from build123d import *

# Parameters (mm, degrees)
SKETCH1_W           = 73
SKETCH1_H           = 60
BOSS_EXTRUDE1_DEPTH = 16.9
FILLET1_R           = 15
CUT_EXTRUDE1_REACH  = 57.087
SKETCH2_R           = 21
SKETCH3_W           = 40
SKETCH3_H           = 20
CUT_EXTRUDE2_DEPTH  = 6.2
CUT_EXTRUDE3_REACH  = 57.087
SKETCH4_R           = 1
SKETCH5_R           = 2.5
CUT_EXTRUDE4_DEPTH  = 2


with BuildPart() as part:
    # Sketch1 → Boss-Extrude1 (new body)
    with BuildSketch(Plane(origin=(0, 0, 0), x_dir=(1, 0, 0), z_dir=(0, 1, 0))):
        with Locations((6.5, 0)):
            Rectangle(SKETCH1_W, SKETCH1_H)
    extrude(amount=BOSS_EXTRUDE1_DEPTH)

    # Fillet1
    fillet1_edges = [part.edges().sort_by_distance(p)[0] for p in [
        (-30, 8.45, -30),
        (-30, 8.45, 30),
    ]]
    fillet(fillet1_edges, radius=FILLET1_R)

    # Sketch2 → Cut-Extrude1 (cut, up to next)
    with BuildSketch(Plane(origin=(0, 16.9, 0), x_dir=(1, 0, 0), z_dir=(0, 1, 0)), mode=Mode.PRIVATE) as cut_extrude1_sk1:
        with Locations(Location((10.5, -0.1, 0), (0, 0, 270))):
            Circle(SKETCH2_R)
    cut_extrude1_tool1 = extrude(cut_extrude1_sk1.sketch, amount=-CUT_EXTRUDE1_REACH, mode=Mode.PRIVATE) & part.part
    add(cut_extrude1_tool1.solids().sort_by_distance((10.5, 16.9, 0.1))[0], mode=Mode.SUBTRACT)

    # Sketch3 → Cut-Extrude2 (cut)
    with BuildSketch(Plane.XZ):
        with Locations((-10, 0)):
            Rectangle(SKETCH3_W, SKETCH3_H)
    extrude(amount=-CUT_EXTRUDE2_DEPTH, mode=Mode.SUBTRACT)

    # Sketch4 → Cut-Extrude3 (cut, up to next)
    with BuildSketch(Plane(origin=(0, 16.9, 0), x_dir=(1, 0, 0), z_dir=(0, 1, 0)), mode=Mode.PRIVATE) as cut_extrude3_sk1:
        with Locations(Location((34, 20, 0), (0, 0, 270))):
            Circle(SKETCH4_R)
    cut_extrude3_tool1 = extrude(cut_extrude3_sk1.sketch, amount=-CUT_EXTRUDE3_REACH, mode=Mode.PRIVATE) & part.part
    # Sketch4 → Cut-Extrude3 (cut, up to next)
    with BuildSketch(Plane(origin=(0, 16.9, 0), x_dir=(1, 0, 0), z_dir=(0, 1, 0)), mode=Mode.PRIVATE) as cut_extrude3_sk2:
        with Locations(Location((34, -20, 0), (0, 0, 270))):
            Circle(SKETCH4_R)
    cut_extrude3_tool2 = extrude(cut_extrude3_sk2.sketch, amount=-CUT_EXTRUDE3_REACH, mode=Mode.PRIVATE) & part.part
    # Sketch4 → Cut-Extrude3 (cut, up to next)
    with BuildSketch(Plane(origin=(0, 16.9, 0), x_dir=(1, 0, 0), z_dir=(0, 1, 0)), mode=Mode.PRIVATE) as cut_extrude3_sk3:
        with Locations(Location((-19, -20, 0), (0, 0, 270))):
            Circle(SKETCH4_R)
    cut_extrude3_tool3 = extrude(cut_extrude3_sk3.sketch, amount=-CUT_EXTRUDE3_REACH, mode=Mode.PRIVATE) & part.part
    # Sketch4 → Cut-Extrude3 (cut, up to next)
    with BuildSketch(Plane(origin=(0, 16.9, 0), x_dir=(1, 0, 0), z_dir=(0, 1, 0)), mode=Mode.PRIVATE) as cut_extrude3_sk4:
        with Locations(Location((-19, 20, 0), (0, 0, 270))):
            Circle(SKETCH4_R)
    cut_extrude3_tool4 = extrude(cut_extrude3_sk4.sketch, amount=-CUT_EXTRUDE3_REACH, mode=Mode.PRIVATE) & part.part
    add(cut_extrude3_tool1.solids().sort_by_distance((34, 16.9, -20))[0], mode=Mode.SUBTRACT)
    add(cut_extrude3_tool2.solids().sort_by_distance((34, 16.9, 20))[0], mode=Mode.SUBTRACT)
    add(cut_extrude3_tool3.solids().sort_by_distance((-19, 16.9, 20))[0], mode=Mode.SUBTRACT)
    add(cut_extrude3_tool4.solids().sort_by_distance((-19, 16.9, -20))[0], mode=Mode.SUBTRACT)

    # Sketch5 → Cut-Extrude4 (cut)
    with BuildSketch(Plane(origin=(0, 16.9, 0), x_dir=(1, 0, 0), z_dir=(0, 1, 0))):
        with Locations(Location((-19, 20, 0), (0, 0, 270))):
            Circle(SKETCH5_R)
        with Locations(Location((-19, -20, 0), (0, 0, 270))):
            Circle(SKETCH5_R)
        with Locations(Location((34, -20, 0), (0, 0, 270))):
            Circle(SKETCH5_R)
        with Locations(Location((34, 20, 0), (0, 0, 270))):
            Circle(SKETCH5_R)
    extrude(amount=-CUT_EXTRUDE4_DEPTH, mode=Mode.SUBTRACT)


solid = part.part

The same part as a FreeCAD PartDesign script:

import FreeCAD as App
import Part
import Sketcher
from FreeCAD import Vector
Q = App.Units.Quantity


def edges_at(feature, points):
    """Names of the edges that pass closest to the given points."""
    edges = feature.Shape.Edges
    near = lambda p: min(range(len(edges)), key=lambda i: edges[i].distToShape(Part.Vertex(*p))[0])
    return sorted({f"Edge{near(p) + 1}" for p in points})


def add_polygon(sketch, points):
    """Adds a closed chain of lines whose ends are joined by coincident constraints."""
    first, n = sketch.GeometryCount, len(points)
    for a, b in zip(points, points[1:] + points[:1]):
        sketch.addGeometry(Part.LineSegment(App.Vector(*a, 0), App.Vector(*b, 0)), False)
    for i in range(n):
        sketch.addConstraint(Sketcher.Constraint("Coincident", first + i, 2, first + (i + 1) % n, 1))

doc = App.newDocument("Part")
params = doc.addObject("Spreadsheet::Sheet", "Params")
for row, (alias, value) in enumerate([
    ("sketch1_width", "73 mm"),
    ("sketch1_height", "60 mm"),
    ("pad1_length", "16.9 mm"),
    ("fillet_radius", "15 mm"),
    ("sketch2_diameter", "42 mm"),
    ("sketch3_width", "40 mm"),
    ("sketch3_height", "20 mm"),
    ("pocket2_length", "6.2 mm"),
    ("sketch4_diameter", "2 mm"),
    ("sketch5_diameter", "2 mm"),
    ("sketch6_diameter", "2 mm"),
    ("sketch7_diameter", "2 mm"),
    ("sketch8_diameter", "5 mm"),
    ("pocket7_length", "2 mm"),
], start=1):
    params.set(f"A{row}", alias)
    params.set(f"B{row}", "=" + value)
    params.setAlias(f"B{row}", alias)

body = doc.addObject("PartDesign::Body", "Body")

sketch1 = body.newObject("Sketcher::SketchObject", "Sketch")
sketch1.AttachmentSupport = (doc.getObject("XZ_Plane"), [""])
sketch1.MapMode = "FlatFace"
add_polygon(sketch1, [(-30, -30), (-30, 30), (43, 30), (43, -30)])
sketch1.addConstraint([
    Sketcher.Constraint("Vertical", 0),
    Sketcher.Constraint("Horizontal", 1),
    Sketcher.Constraint("Vertical", 2),
    Sketcher.Constraint("Horizontal", 3),
    Sketcher.Constraint("DistanceX", 1, 1, 1, 2, Q("73 mm")),
    Sketcher.Constraint("DistanceY", 0, 1, 0, 2, Q("60 mm")),
    Sketcher.Constraint("DistanceX", 0, 2, -1, 1, Q("30 mm")),
    Sketcher.Constraint("DistanceY", -1, 1, 0, 2, Q("30 mm")),
])
sketch1.setExpression("Constraints[8]", "Params.sketch1_width")
sketch1.setExpression("Constraints[9]", "Params.sketch1_height")
pad1 = body.newObject("PartDesign::Pad", "Pad")
pad1.Profile = sketch1
pad1.setExpression("Length", "Params.pad1_length")
pad1.Reversed = True
doc.recompute()

fillet = body.newObject("PartDesign::Fillet", "Fillet")
fillet.Base = (pad1, edges_at(pad1, [(-30, 8.45, -30), (-30, 8.45, 30)]))
fillet.setExpression("Radius", "Params.fillet_radius")

sketch2 = body.newObject("Sketcher::SketchObject", "Sketch001")
sketch2.AttachmentSupport = (doc.getObject("XZ_Plane"), [""])
sketch2.MapMode = "FlatFace"
sketch2.AttachmentOffset = App.Placement(Vector(0, 0, -16.9), App.Rotation())
sketch2.addGeometry(Part.Circle(Vector(10, 0, 0), Vector(0, 0, 1), 21), False)
sketch2.addConstraint([
    Sketcher.Constraint("Diameter", 0, Q("42 mm")),
    Sketcher.Constraint("DistanceX", -1, 1, 0, 3, Q("10.5 mm")),
    Sketcher.Constraint("DistanceY", -1, 1, 0, 3, Q("0.1 mm")),
])
sketch2.setExpression("Constraints[0]", "Params.sketch2_diameter")
pocket1 = body.newObject("PartDesign::Pocket", "Pocket")
pocket1.Profile = sketch2
pocket1.Type = "UpToFirst"
pocket1.Reversed = True

sketch3 = body.newObject("Sketcher::SketchObject", "Sketch002")
sketch3.AttachmentSupport = (doc.getObject("XZ_Plane"), [""])
sketch3.MapMode = "FlatFace"
add_polygon(sketch3, [(-30, 10), (-30, -10), (10, -10), (10, 10)])
sketch3.addConstraint([
    Sketcher.Constraint("Vertical", 0),
    Sketcher.Constraint("Horizontal", 1),
    Sketcher.Constraint("Vertical", 2),
    Sketcher.Constraint("Horizontal", 3),
    Sketcher.Constraint("DistanceX", 1, 1, 1, 2, Q("40 mm")),
    Sketcher.Constraint("DistanceY", 0, 2, 0, 1, Q("20 mm")),
    Sketcher.Constraint("DistanceX", 0, 2, -1, 1, Q("30 mm")),
    Sketcher.Constraint("DistanceY", 0, 2, -1, 1, Q("10 mm")),
])
sketch3.setExpression("Constraints[8]", "Params.sketch3_width")
sketch3.setExpression("Constraints[9]", "Params.sketch3_height")
pocket2 = body.newObject("PartDesign::Pocket", "Pocket001")
pocket2.Profile = sketch3
pocket2.setExpression("Length", "Params.pocket2_length")

sketch4 = body.newObject("Sketcher::SketchObject", "Sketch003")
sketch4.AttachmentSupport = (doc.getObject("XZ_Plane"), [""])
sketch4.MapMode = "FlatFace"
sketch4.AttachmentOffset = App.Placement(Vector(0, 0, -16.9), App.Rotation())
sketch4.addGeometry(Part.Circle(Vector(34, -20, 0), Vector(0, 0, 1), 1), False)
sketch4.addConstraint([
    Sketcher.Constraint("Diameter", 0, Q("2 mm")),
    Sketcher.Constraint("DistanceX", -1, 1, 0, 3, Q("34 mm")),
    Sketcher.Constraint("DistanceY", 0, 3, -1, 1, Q("20 mm")),
])
sketch4.setExpression("Constraints[0]", "Params.sketch4_diameter")
pocket3 = body.newObject("PartDesign::Pocket", "Pocket002")
pocket3.Profile = sketch4
pocket3.Type = "UpToFirst"
pocket3.Reversed = True

sketch5 = body.newObject("Sketcher::SketchObject", "Sketch004")
sketch5.AttachmentSupport = (doc.getObject("XZ_Plane"), [""])
sketch5.MapMode = "FlatFace"
sketch5.AttachmentOffset = App.Placement(Vector(0, 0, -16.9), App.Rotation())
sketch5.addGeometry(Part.Circle(Vector(34, 20, 0), Vector(0, 0, 1), 1), False)
sketch5.addConstraint([
    Sketcher.Constraint("Diameter", 0, Q("2 mm")),
    Sketcher.Constraint("DistanceX", -1, 1, 0, 3, Q("34 mm")),
    Sketcher.Constraint("DistanceY", -1, 1, 0, 3, Q("20 mm")),
])
sketch5.setExpression("Constraints[0]", "Params.sketch5_diameter")
pocket4 = body.newObject("PartDesign::Pocket", "Pocket003")
pocket4.Profile = sketch5
pocket4.Type = "UpToFirst"
pocket4.Reversed = True

sketch6 = body.newObject("Sketcher::SketchObject", "Sketch005")
sketch6.AttachmentSupport = (doc.getObject("XZ_Plane"), [""])
sketch6.MapMode = "FlatFace"
sketch6.AttachmentOffset = App.Placement(Vector(0, 0, -16.9), App.Rotation())
sketch6.addGeometry(Part.Circle(Vector(-19, 20, 0), Vector(0, 0, 1), 1), False)
sketch6.addConstraint([
    Sketcher.Constraint("Diameter", 0, Q("2 mm")),
    Sketcher.Constraint("DistanceX", 0, 3, -1, 1, Q("19 mm")),
    Sketcher.Constraint("DistanceY", -1, 1, 0, 3, Q("20 mm")),
])
sketch6.setExpression("Constraints[0]", "Params.sketch6_diameter")
pocket5 = body.newObject("PartDesign::Pocket", "Pocket004")
pocket5.Profile = sketch6
pocket5.Type = "UpToFirst"
pocket5.Reversed = True

sketch7 = body.newObject("Sketcher::SketchObject", "Sketch006")
sketch7.AttachmentSupport = (doc.getObject("XZ_Plane"), [""])
sketch7.MapMode = "FlatFace"
sketch7.AttachmentOffset = App.Placement(Vector(0, 0, -16.9), App.Rotation())
sketch7.addGeometry(Part.Circle(Vector(-19, -20, 0), Vector(0, 0, 1), 1), False)
sketch7.addConstraint([
    Sketcher.Constraint("Diameter", 0, Q("2 mm")),
    Sketcher.Constraint("DistanceX", 0, 3, -1, 1, Q("19 mm")),
    Sketcher.Constraint("DistanceY", 0, 3, -1, 1, Q("20 mm")),
])
sketch7.setExpression("Constraints[0]", "Params.sketch7_diameter")
pocket6 = body.newObject("PartDesign::Pocket", "Pocket005")
pocket6.Profile = sketch7
pocket6.Type = "UpToFirst"
pocket6.Reversed = True

sketch8 = body.newObject("Sketcher::SketchObject", "Sketch007")
sketch8.AttachmentSupport = (doc.getObject("XZ_Plane"), [""])
sketch8.MapMode = "FlatFace"
sketch8.AttachmentOffset = App.Placement(Vector(0, 0, -16.9), App.Rotation())
sketch8.addGeometry([
    Part.Circle(Vector(-19, -20, 0), Vector(0, 0, 1), 2.5),
    Part.Circle(Vector(-19, 20, 0), Vector(0, 0, 1), 2.5),
    Part.Circle(Vector(34, 20, 0), Vector(0, 0, 1), 2.5),
    Part.Circle(Vector(34, -20, 0), Vector(0, 0, 1), 2.5),
], False)
sketch8.addConstraint([
    Sketcher.Constraint("Equal", 0, 1),
    Sketcher.Constraint("Equal", 1, 2),
    Sketcher.Constraint("Equal", 2, 3),
    Sketcher.Constraint("Symmetric", 0, 3, 1, 3, -1),
    Sketcher.Constraint("Symmetric", 2, 3, 3, 3, -1),
    Sketcher.Constraint("Horizontal", 1, 3, 2, 3),
    Sketcher.Constraint("Diameter", 0, Q("5 mm")),
    Sketcher.Constraint("DistanceX", 0, 3, -1, 1, Q("19 mm")),
    Sketcher.Constraint("DistanceY", 0, 3, -1, 1, Q("20 mm")),
    Sketcher.Constraint("DistanceX", -1, 1, 2, 3, Q("34 mm")),
])
sketch8.setExpression("Constraints[6]", "Params.sketch8_diameter")
pocket7 = body.newObject("PartDesign::Pocket", "Pocket006")
pocket7.Profile = sketch8
pocket7.setExpression("Length", "Params.pocket7_length")
pocket7.Reversed = True

doc.recompute()
